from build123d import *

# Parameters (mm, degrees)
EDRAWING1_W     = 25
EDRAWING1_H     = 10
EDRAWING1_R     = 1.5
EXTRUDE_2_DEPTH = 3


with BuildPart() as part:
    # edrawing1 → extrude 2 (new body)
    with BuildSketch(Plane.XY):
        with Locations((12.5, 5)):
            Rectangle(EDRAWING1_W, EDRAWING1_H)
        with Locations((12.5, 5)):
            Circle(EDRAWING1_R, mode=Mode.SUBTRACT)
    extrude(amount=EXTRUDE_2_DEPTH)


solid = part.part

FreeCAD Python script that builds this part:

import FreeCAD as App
import Part
import Sketcher
from FreeCAD import Vector
Q = App.Units.Quantity

doc = App.newDocument("Part")
body = doc.addObject("PartDesign::Body", "Body")

# Sketch on XY plane
sketch1 = body.newObject("Sketcher::SketchObject", "Sketch")
sketch1.AttachmentSupport = (doc.getObject("XY_Plane"), [""])
sketch1.MapMode = "FlatFace"
sketch1.addGeometry(Part.LineSegment(Vector(0, 10, 0), Vector(0, 0, 0)), False)
sketch1.addGeometry(Part.LineSegment(Vector(0, 0, 0), Vector(25, 0, 0)), False)
sketch1.addGeometry(Part.LineSegment(Vector(25, 0, 0), Vector(25, 10, 0)), False)
sketch1.addGeometry(Part.LineSegment(Vector(25, 10, 0), Vector(0, 10, 0)), False)
sketch1.addGeometry(Part.Circle(Vector(12.5, 5, 0), Vector(0, 0, 1), 1.5), False)
sketch1.addConstraint(Sketcher.Constraint("Coincident", 0, 2, 1, 1))
sketch1.addConstraint(Sketcher.Constraint("Coincident", 1, 2, 2, 1))
sketch1.addConstraint(Sketcher.Constraint("Coincident", 2, 2, 3, 1))
sketch1.addConstraint(Sketcher.Constraint("Coincident", 3, 2, 0, 1))
sketch1.addConstraint(Sketcher.Constraint("Vertical", 0))
sketch1.addConstraint(Sketcher.Constraint("Horizontal", 1))
sketch1.addConstraint(Sketcher.Constraint("Vertical", 2))
sketch1.addConstraint(Sketcher.Constraint("Horizontal", 3))
sketch1.addConstraint(Sketcher.Constraint("Coincident", 0, 2, -1, 1))
sketch1.addConstraint(Sketcher.Constraint("Diameter", 4, Q("3 mm")))
sketch1.addConstraint(Sketcher.Constraint("DistanceX", 1, 1, 1, 2, Q("25 mm")))
sketch1.addConstraint(Sketcher.Constraint("DistanceY", 0, 2, 0, 1, Q("10 mm")))
sketch1.addConstraint(Sketcher.Constraint("DistanceY", -1, 1, 4, 3, Q("5 mm")))
sketch1.addConstraint(Sketcher.Constraint("DistanceX", -1, 1, 4, 3, Q("12.5 mm")))
pad1 = body.newObject("PartDesign::Pad", "Pad")
pad1.Profile = sketch1
pad1.Length = 3

doc.recompute()
